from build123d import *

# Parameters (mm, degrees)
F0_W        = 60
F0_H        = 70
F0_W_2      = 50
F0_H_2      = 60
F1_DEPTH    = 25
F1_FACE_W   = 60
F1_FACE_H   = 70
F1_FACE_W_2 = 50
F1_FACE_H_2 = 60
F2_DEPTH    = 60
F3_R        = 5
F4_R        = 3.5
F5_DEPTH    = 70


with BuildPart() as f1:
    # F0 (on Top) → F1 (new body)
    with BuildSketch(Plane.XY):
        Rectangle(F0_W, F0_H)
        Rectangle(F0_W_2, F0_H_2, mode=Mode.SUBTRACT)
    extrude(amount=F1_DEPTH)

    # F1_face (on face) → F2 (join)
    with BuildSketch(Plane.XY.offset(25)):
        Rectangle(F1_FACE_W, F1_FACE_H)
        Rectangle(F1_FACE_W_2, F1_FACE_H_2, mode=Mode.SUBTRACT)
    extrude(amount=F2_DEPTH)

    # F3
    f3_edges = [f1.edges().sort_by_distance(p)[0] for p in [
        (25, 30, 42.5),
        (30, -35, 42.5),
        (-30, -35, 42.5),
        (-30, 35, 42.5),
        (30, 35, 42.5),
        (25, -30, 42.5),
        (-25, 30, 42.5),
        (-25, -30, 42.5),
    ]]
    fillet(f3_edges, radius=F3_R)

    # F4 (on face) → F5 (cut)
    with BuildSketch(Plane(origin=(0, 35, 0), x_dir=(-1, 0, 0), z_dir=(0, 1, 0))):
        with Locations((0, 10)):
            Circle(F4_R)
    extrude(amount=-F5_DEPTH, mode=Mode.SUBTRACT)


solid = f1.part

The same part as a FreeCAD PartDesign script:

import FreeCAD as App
import Part
import Sketcher

V = App.Vector


def edges_at(feature, points):
    """Names of the edges that pass closest to the given points."""
    edges = feature.Shape.Edges
    near = lambda p: min(range(len(edges)), key=lambda i: edges[i].distToShape(Part.Vertex(*p))[0])
    return sorted({f"Edge{near(p) + 1}" for p in points})

doc = App.newDocument("Part")
body = doc.addObject("PartDesign::Body", "Body")

sketch1 = body.newObject("Sketcher::SketchObject", "Sketch")
sketch1.AttachmentSupport = (doc.getObject("XY_Plane"), [""])
sketch1.MapMode = "FlatFace"
sketch1.addGeometry(Part.LineSegment(V(-30, 35, 0), V(-30, -35, 0)), False)
sketch1.addGeometry(Part.LineSegment(V(-30, -35, 0), V(30, -35, 0)), False)
sketch1.addGeometry(Part.LineSegment(V(30, -35, 0), V(30, 35, 0)), False)
sketch1.addGeometry(Part.LineSegment(V(30, 35, 0), V(-30, 35, 0)), False)
sketch1.addGeometry(Part.LineSegment(V(25, -30, 0), V(-25, -30, 0)), False)
sketch1.addGeometry(Part.LineSegment(V(-25, -30, 0), V(-25, 30, 0)), False)
sketch1.addGeometry(Part.LineSegment(V(-25, 30, 0), V(25, 30, 0)), False)
sketch1.addGeometry(Part.LineSegment(V(25, 30, 0), V(25, -30, 0)), False)
sketch1.addConstraint(Sketcher.Constraint("Coincident", 0, 2, 1, 1))
sketch1.addConstraint(Sketcher.Constraint("Coincident", 1, 2, 2, 1))
sketch1.addConstraint(Sketcher.Constraint("Coincident", 2, 2, 3, 1))
sketch1.addConstraint(Sketcher.Constraint("Coincident", 3, 2, 0, 1))
sketch1.addConstraint(Sketcher.Constraint("Coincident", 4, 2, 5, 1))
sketch1.addConstraint(Sketcher.Constraint("Coincident", 5, 2, 6, 1))
sketch1.addConstraint(Sketcher.Constraint("Coincident", 6, 2, 7, 1))
sketch1.addConstraint(Sketcher.Constraint("Coincident", 7, 2, 4, 1))
sketch1.addConstraint(Sketcher.Constraint("Vertical", 0))
sketch1.addConstraint(Sketcher.Constraint("Horizontal", 1))
sketch1.addConstraint(Sketcher.Constraint("Vertical", 2))
sketch1.addConstraint(Sketcher.Constraint("Horizontal", 3))
sketch1.addConstraint(Sketcher.Constraint("Horizontal", 4))
sketch1.addConstraint(Sketcher.Constraint("Vertical", 5))
sketch1.addConstraint(Sketcher.Constraint("Horizontal", 6))
sketch1.addConstraint(Sketcher.Constraint("Vertical", 7))
sketch1.addConstraint(Sketcher.Constraint("Symmetric", 0, 2, 2, 2, -1, 1))
sketch1.addConstraint(Sketcher.Constraint("Symmetric", 4, 2, 6, 2, -1, 1))
sketch1.addConstraint(Sketcher.Constraint("Equal", 3, 5))
sketch1.addConstraint(Sketcher.Constraint("DistanceX", 1, 1, 1, 2, 60.0))
sketch1.addConstraint(Sketcher.Constraint("DistanceX", 4, 2, 4, 1, 50.0))
sketch1.addConstraint(Sketcher.Constraint("DistanceY", 0, 2, 0, 1, 70.0))
pad1 = body.newObject("PartDesign::Pad", "Pad")
pad1.Profile = sketch1
pad1.Length = 25

sketch2 = body.newObject("Sketcher::SketchObject", "Sketch001")
sketch2.AttachmentSupport = (doc.getObject("XY_Plane"), [""])
sketch2.MapMode = "FlatFace"
sketch2.AttachmentOffset = App.Placement(V(0, 0, 25), App.Rotation())
sketch2.addGeometry(Part.LineSegment(V(-30, 35, 0), V(-30, -35, 0)), False)
sketch2.addGeometry(Part.LineSegment(V(-30, -35, 0), V(30, -35, 0)), False)
sketch2.addGeometry(Part.LineSegment(V(30, -35, 0), V(30, 35, 0)), False)
sketch2.addGeometry(Part.LineSegment(V(30, 35, 0), V(-30, 35, 0)), False)
sketch2.addGeometry(Part.LineSegment(V(25, -30, 0), V(-25, -30, 0)), False)
sketch2.addGeometry(Part.LineSegment(V(-25, -30, 0), V(-25, 30, 0)), False)
sketch2.addGeometry(Part.LineSegment(V(-25, 30, 0), V(25, 30, 0)), False)
sketch2.addGeometry(Part.LineSegment(V(25, 30, 0), V(25, -30, 0)), False)
sketch2.addConstraint(Sketcher.Constraint("Coincident", 0, 2, 1, 1))
sketch2.addConstraint(Sketcher.Constraint("Coincident", 1, 2, 2, 1))
sketch2.addConstraint(Sketcher.Constraint("Coincident", 2, 2, 3, 1))
sketch2.addConstraint(Sketcher.Constraint("Coincident", 3, 2, 0, 1))
sketch2.addConstraint(Sketcher.Constraint("Coincident", 4, 2, 5, 1))
sketch2.addConstraint(Sketcher.Constraint("Coincident", 5, 2, 6, 1))
sketch2.addConstraint(Sketcher.Constraint("Coincident", 6, 2, 7, 1))
sketch2.addConstraint(Sketcher.Constraint("Coincident", 7, 2, 4, 1))
sketch2.addConstraint(Sketcher.Constraint("Vertical", 0))
sketch2.addConstraint(Sketcher.Constraint("Horizontal", 1))
sketch2.addConstraint(Sketcher.Constraint("Vertical", 2))
sketch2.addConstraint(Sketcher.Constraint("Horizontal", 3))
sketch2.addConstraint(Sketcher.Constraint("Horizontal", 4))
sketch2.addConstraint(Sketcher.Constraint("Vertical", 5))
sketch2.addConstraint(Sketcher.Constraint("Horizontal", 6))
sketch2.addConstraint(Sketcher.Constraint("Vertical", 7))
sketch2.addConstraint(Sketcher.Constraint("Symmetric", 0, 2, 2, 2, -1, 1))
sketch2.addConstraint(Sketcher.Constraint("Symmetric", 4, 2, 6, 2, -1, 1))
sketch2.addConstraint(Sketcher.Constraint("Equal", 3, 5))
sketch2.addConstraint(Sketcher.Constraint("DistanceX", 1, 1, 1, 2, 60.0))
sketch2.addConstraint(Sketcher.Constraint("DistanceX", 4, 2, 4, 1, 50.0))
sketch2.addConstraint(Sketcher.Constraint("DistanceY", 0, 2, 0, 1, 70.0))
pad2 = body.newObject("PartDesign::Pad", "Pad001")
pad2.Profile = sketch2
pad2.Length = 60
doc.recompute()

fillet = body.newObject("PartDesign::Fillet", "Fillet")
fillet.Base = (pad2, edges_at(pad2, [
    (25, 30, 42.5),
    (30, -35, 42.5),
    (-30, -35, 42.5),
    (-30, 35, 42.5),
    (30, 35, 42.5),
    (25, -30, 42.5),
    (-25, 30, 42.5),
    (-25, -30, 42.5),
]))
fillet.Radius = 5

sketch3 = body.newObject("Sketcher::SketchObject", "Sketch002")
sketch3.AttachmentSupport = (doc.getObject("XZ_Plane"), [""])
sketch3.MapMode = "FlatFace"
sketch3.AttachmentOffset = App.Placement(V(0, 0, -35), App.Rotation())
sketch3.addGeometry(Part.Circle(V(0, 10, 0), V(0, 0, 1), 3.5), False)
sketch3.addConstraint(Sketcher.Constraint("PointOnObject", 0, 3, -2))
sketch3.addConstraint(Sketcher.Constraint("Diameter", 0, 7.0))
sketch3.addConstraint(Sketcher.Constraint("DistanceY", -1, 1, 0, 3, 10.0))
pocket1 = body.newObject("PartDesign::Pocket", "Pocket")
pocket1.Profile = sketch3
pocket1.Length = 70
pocket1.Reversed = True

doc.recompute()
